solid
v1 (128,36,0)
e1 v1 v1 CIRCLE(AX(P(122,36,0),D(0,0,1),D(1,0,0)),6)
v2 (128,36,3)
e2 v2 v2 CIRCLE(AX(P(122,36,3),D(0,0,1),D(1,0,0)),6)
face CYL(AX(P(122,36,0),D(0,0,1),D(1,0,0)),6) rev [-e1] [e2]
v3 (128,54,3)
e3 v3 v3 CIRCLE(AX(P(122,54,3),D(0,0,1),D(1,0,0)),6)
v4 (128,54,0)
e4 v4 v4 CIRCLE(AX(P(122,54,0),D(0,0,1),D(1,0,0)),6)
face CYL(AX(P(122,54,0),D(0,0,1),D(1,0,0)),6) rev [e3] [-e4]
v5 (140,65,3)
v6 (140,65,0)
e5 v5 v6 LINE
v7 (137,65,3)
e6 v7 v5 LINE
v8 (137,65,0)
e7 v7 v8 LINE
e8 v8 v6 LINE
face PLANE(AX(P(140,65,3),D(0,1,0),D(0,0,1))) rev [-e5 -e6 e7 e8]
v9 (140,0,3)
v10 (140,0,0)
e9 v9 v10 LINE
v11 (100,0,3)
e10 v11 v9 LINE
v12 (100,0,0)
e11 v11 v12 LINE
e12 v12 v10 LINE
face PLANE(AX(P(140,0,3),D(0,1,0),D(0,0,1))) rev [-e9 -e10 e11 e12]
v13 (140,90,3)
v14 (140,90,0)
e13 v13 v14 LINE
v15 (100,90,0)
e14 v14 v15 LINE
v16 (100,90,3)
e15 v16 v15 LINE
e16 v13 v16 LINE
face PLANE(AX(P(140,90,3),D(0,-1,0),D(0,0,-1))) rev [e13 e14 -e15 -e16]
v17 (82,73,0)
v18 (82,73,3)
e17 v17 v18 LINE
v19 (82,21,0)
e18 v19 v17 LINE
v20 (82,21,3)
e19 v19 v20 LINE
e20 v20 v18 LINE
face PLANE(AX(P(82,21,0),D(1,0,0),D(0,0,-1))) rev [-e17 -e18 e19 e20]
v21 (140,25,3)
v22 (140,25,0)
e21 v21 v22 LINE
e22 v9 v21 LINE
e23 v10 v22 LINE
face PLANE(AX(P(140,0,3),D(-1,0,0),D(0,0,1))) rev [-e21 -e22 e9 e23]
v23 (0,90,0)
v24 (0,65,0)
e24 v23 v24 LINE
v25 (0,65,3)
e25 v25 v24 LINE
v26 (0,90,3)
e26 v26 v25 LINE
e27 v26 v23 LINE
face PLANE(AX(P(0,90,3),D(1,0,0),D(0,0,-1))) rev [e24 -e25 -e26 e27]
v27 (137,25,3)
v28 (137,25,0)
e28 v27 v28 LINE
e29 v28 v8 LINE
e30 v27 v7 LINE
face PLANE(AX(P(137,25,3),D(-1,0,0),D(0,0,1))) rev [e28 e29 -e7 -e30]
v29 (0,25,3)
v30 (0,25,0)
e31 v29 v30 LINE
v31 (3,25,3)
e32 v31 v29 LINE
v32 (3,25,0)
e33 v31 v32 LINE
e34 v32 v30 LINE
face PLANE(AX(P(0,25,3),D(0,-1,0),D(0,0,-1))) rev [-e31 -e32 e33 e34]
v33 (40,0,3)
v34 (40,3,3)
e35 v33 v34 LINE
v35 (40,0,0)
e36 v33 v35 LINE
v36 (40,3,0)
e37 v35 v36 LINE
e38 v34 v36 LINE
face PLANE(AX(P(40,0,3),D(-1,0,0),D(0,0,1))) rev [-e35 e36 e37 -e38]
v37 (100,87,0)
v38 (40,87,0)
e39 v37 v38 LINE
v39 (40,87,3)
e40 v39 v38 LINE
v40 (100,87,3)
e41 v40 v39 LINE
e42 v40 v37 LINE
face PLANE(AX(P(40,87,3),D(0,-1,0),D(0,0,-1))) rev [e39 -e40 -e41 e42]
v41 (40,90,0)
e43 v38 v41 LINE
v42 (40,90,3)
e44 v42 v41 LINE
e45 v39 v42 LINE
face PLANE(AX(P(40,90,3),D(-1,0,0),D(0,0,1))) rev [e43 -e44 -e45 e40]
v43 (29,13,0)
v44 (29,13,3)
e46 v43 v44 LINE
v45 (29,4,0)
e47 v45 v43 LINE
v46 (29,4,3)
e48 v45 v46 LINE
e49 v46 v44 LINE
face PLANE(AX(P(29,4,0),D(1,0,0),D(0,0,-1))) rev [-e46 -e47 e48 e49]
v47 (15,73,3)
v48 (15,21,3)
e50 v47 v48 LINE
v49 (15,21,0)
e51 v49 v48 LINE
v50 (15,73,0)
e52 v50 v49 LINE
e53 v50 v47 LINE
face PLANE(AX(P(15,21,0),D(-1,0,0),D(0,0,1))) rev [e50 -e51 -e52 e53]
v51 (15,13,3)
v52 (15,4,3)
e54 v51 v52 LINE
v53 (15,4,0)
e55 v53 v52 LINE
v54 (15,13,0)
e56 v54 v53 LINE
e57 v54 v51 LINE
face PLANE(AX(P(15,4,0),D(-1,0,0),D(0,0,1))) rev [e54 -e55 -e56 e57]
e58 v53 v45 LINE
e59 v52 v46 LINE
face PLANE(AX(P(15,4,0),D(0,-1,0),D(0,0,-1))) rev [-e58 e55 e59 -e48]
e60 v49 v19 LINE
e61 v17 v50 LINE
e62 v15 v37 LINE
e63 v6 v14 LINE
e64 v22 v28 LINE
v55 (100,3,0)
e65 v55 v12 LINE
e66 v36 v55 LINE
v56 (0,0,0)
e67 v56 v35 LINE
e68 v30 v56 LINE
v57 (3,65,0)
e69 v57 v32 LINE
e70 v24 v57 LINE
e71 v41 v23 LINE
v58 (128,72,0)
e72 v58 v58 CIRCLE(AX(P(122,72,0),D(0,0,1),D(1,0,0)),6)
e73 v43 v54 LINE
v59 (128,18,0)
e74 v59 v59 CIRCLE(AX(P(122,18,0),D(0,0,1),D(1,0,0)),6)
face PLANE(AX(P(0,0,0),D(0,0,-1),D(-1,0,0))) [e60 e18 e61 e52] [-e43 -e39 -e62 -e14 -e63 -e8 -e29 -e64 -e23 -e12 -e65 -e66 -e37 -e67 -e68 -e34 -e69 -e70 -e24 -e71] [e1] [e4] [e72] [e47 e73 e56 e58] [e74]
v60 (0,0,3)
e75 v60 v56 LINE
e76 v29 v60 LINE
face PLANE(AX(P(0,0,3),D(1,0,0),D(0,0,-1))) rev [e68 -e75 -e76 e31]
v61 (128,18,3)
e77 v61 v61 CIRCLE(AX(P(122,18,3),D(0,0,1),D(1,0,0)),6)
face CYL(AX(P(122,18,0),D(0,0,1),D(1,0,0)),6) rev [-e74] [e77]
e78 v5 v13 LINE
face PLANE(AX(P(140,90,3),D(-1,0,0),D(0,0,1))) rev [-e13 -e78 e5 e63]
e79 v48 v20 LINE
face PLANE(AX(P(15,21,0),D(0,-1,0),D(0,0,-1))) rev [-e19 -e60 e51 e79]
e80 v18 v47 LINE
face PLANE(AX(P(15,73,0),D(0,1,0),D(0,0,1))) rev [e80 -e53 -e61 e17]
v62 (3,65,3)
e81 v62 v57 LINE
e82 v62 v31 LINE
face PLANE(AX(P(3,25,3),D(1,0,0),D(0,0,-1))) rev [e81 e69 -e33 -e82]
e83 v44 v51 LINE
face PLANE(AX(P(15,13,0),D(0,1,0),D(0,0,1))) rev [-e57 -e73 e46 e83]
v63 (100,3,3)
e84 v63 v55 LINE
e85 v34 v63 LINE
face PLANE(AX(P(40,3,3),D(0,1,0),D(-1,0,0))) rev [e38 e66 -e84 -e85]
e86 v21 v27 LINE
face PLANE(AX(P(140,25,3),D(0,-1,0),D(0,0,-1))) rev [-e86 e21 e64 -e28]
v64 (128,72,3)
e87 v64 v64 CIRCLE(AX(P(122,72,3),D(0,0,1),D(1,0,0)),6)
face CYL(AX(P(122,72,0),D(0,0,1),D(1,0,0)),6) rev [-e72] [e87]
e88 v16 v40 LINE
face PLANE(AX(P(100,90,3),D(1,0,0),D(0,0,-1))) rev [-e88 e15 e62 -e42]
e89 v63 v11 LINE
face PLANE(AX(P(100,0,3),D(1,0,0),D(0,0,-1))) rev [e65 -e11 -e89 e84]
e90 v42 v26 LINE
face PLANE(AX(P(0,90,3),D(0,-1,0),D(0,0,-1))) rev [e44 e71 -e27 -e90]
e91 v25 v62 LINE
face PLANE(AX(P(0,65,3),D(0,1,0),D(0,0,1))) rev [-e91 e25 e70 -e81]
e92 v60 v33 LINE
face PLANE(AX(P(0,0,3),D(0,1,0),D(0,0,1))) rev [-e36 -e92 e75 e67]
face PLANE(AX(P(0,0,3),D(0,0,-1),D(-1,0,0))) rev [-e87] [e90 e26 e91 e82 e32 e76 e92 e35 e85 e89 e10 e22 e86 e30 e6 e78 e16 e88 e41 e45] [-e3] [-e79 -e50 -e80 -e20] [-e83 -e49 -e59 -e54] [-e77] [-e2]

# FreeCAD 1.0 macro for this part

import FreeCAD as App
import Part
import Sketcher
from FreeCAD import Vector
Q = App.Units.Quantity


def add_polygon(sketch, points):
    """Adds a closed chain of lines whose ends are joined by coincident constraints."""
    first, n = sketch.GeometryCount, len(points)
    for a, b in zip(points, points[1:] + points[:1]):
        sketch.addGeometry(Part.LineSegment(App.Vector(*a, 0), App.Vector(*b, 0)), False)
    for i in range(n):
        sketch.addConstraint(Sketcher.Constraint("Coincident", first + i, 2, first + (i + 1) % n, 1))

doc = App.newDocument("Part")
body = doc.addObject("PartDesign::Body", "Body")

# Sketch on XY plane
sketch1 = body.newObject("Sketcher::SketchObject", "Sketch")
sketch1.AttachmentSupport = (doc.getObject("XY_Plane"), [""])
sketch1.MapMode = "FlatFace"
add_polygon(sketch1, [(0, 0), (40, 0), (40, 3), (100, 3), (100, 0), (140, 0), (140, 25), (137, 25), (137, 65), (140, 65), (140, 90), (100, 90), (100, 87), (40, 87), (40, 90), (0, 90), (0, 65), (3, 65), (3, 25), (0, 25)])  # lines 0-19
sketch1.addConstraint([
    Sketcher.Constraint("Horizontal", 0),
    Sketcher.Constraint("Vertical", 1),
    Sketcher.Constraint("Horizontal", 2),
    Sketcher.Constraint("Vertical", 3),
    Sketcher.Constraint("Horizontal", 4),
    Sketcher.Constraint("Vertical", 5),
    Sketcher.Constraint("Horizontal", 6),
    Sketcher.Constraint("Vertical", 7),
    Sketcher.Constraint("Horizontal", 8),
    Sketcher.Constraint("Vertical", 9),
    Sketcher.Constraint("Horizontal", 10),
    Sketcher.Constraint("Vertical", 11),
    Sketcher.Constraint("Horizontal", 12),
    Sketcher.Constraint("Vertical", 13),
    Sketcher.Constraint("Horizontal", 14),
    Sketcher.Constraint("Vertical", 15),
    Sketcher.Constraint("Horizontal", 16),
    Sketcher.Constraint("Vertical", 17),
    Sketcher.Constraint("Horizontal", 18),
    Sketcher.Constraint("Vertical", 19),
    Sketcher.Constraint("Coincident", 19, 2, -1, 1),
    Sketcher.Constraint("PointOnObject", 3, 2, -1),
    Sketcher.Constraint("PointOnObject", 14, 2, -2),
    Sketcher.Constraint("Horizontal", 10, 2, 13, 2),
    Sketcher.Constraint("Horizontal", 8, 2, 15, 2),
    Sketcher.Constraint("Horizontal", 6, 2, 17, 2),
    Sketcher.Constraint("Vertical", 5, 2, 8, 2),
    Sketcher.Constraint("Vertical", 3, 2, 10, 2),
    Sketcher.Constraint("Vertical", 1, 2, 12, 2),
    Sketcher.Constraint("Equal", 0, 4),
    Sketcher.Constraint("Equal", 8, 16),
    Sketcher.Constraint("Equal", 18, 1),
    Sketcher.Constraint("Equal", 14, 7),
    Sketcher.Constraint("Equal", 5, 9),
    Sketcher.Constraint("Equal", 3, 11),
    Sketcher.Constraint("DistanceX", 0, 1, 0, 2, Q("40 mm")),
    Sketcher.Constraint("DistanceX", 2, 1, 2, 2, Q("60 mm")),
    Sketcher.Constraint("DistanceX", 6, 2, 6, 1, Q("3 mm")),
    Sketcher.Constraint("DistanceY", 5, 1, 5, 2, Q("25 mm")),
])
pad1 = body.newObject("PartDesign::Pad", "Pad")
pad1.Profile = sketch1
pad1.Length = 3

# Sketch on XY plane
sketch2 = body.newObject("Sketcher::SketchObject", "Sketch001")
sketch2.AttachmentSupport = (doc.getObject("XY_Plane"), [""])
sketch2.MapMode = "FlatFace"
sketch2.AttachmentOffset = App.Placement(Vector(0, 0, 3), App.Rotation())
add_polygon(sketch2, [(15, 13), (15, 4), (29, 4), (29, 13)])  # lines 0-3
sketch2.addConstraint([
    Sketcher.Constraint("Vertical", 0),
    Sketcher.Constraint("Horizontal", 1),
    Sketcher.Constraint("Vertical", 2),
    Sketcher.Constraint("Horizontal", 3),
    Sketcher.Constraint("DistanceX", 1, 1, 1, 2, Q("14 mm")),
    Sketcher.Constraint("DistanceY", 0, 2, 0, 1, Q("9 mm")),
    Sketcher.Constraint("DistanceX", -1, 1, 0, 2, Q("15 mm")),
    Sketcher.Constraint("DistanceY", -1, 1, 0, 2, Q("4 mm")),
])
pocket1 = body.newObject("PartDesign::Pocket", "Pocket")
pocket1.Profile = sketch2
pocket1.Type = "ThroughAll"

# Sketch on XY plane
sketch3 = body.newObject("Sketcher::SketchObject", "Sketch002")
sketch3.AttachmentSupport = (doc.getObject("XY_Plane"), [""])
sketch3.MapMode = "FlatFace"
sketch3.AttachmentOffset = App.Placement(Vector(0, 0, 3), App.Rotation())
add_polygon(sketch3, [(15, 73), (15, 21), (82, 21), (82, 73)])  # lines 0-3
sketch3.addConstraint([
    Sketcher.Constraint("Vertical", 0),
    Sketcher.Constraint("Horizontal", 1),
    Sketcher.Constraint("Vertical", 2),
    Sketcher.Constraint("Horizontal", 3),
    Sketcher.Constraint("DistanceX", 1, 1, 1, 2, Q("67 mm")),
    Sketcher.Constraint("DistanceY", 0, 2, 0, 1, Q("52 mm")),
    Sketcher.Constraint("DistanceX", -1, 1, 0, 2, Q("15 mm")),
    Sketcher.Constraint("DistanceY", -1, 1, 0, 2, Q("21 mm")),
])
pocket2 = body.newObject("PartDesign::Pocket", "Pocket001")
pocket2.Profile = sketch3
pocket2.Type = "ThroughAll"

# Sketch on XY plane
sketch4 = body.newObject("Sketcher::SketchObject", "Sketch003")
sketch4.AttachmentSupport = (doc.getObject("XY_Plane"), [""])
sketch4.MapMode = "FlatFace"
sketch4.AttachmentOffset = App.Placement(Vector(0, 0, 3), App.Rotation())
sketch4.addGeometry([
    Part.Circle(Vector(122, 72, 0), Vector(0, 0, 1), 6),
    Part.Circle(Vector(122, 54, 0), Vector(0, 0, 1), 6),
    Part.Circle(Vector(122, 36, 0), Vector(0, 0, 1), 6),
    Part.Circle(Vector(122, 18, 0), Vector(0, 0, 1), 6),
], False)
sketch4.addConstraint([
    Sketcher.Constraint("Equal", 0, 1),
    Sketcher.Constraint("Equal", 1, 2),
    Sketcher.Constraint("Equal", 2, 3),
    Sketcher.Constraint("Vertical", 0, 3, 1, 3),
    Sketcher.Constraint("Vertical", 1, 3, 2, 3),
    Sketcher.Constraint("Vertical", 2, 3, 3, 3),
    Sketcher.Constraint("Diameter", 0, Q("12 mm")),
    Sketcher.Constraint("DistanceX", -1, 1, 0, 3, Q("122 mm")),
    Sketcher.Constraint("DistanceY", -1, 1, 0, 3, Q("72 mm")),
    Sketcher.Constraint("DistanceY", -1, 1, 1, 3, Q("54 mm")),
    Sketcher.Constraint("DistanceY", -1, 1, 2, 3, Q("36 mm")),
    Sketcher.Constraint("DistanceY", -1, 1, 3, 3, Q("18 mm")),
])
pocket3 = body.newObject("PartDesign::Pocket", "Pocket002")
pocket3.Profile = sketch4
pocket3.Type = "ThroughAll"

doc.recompute()
